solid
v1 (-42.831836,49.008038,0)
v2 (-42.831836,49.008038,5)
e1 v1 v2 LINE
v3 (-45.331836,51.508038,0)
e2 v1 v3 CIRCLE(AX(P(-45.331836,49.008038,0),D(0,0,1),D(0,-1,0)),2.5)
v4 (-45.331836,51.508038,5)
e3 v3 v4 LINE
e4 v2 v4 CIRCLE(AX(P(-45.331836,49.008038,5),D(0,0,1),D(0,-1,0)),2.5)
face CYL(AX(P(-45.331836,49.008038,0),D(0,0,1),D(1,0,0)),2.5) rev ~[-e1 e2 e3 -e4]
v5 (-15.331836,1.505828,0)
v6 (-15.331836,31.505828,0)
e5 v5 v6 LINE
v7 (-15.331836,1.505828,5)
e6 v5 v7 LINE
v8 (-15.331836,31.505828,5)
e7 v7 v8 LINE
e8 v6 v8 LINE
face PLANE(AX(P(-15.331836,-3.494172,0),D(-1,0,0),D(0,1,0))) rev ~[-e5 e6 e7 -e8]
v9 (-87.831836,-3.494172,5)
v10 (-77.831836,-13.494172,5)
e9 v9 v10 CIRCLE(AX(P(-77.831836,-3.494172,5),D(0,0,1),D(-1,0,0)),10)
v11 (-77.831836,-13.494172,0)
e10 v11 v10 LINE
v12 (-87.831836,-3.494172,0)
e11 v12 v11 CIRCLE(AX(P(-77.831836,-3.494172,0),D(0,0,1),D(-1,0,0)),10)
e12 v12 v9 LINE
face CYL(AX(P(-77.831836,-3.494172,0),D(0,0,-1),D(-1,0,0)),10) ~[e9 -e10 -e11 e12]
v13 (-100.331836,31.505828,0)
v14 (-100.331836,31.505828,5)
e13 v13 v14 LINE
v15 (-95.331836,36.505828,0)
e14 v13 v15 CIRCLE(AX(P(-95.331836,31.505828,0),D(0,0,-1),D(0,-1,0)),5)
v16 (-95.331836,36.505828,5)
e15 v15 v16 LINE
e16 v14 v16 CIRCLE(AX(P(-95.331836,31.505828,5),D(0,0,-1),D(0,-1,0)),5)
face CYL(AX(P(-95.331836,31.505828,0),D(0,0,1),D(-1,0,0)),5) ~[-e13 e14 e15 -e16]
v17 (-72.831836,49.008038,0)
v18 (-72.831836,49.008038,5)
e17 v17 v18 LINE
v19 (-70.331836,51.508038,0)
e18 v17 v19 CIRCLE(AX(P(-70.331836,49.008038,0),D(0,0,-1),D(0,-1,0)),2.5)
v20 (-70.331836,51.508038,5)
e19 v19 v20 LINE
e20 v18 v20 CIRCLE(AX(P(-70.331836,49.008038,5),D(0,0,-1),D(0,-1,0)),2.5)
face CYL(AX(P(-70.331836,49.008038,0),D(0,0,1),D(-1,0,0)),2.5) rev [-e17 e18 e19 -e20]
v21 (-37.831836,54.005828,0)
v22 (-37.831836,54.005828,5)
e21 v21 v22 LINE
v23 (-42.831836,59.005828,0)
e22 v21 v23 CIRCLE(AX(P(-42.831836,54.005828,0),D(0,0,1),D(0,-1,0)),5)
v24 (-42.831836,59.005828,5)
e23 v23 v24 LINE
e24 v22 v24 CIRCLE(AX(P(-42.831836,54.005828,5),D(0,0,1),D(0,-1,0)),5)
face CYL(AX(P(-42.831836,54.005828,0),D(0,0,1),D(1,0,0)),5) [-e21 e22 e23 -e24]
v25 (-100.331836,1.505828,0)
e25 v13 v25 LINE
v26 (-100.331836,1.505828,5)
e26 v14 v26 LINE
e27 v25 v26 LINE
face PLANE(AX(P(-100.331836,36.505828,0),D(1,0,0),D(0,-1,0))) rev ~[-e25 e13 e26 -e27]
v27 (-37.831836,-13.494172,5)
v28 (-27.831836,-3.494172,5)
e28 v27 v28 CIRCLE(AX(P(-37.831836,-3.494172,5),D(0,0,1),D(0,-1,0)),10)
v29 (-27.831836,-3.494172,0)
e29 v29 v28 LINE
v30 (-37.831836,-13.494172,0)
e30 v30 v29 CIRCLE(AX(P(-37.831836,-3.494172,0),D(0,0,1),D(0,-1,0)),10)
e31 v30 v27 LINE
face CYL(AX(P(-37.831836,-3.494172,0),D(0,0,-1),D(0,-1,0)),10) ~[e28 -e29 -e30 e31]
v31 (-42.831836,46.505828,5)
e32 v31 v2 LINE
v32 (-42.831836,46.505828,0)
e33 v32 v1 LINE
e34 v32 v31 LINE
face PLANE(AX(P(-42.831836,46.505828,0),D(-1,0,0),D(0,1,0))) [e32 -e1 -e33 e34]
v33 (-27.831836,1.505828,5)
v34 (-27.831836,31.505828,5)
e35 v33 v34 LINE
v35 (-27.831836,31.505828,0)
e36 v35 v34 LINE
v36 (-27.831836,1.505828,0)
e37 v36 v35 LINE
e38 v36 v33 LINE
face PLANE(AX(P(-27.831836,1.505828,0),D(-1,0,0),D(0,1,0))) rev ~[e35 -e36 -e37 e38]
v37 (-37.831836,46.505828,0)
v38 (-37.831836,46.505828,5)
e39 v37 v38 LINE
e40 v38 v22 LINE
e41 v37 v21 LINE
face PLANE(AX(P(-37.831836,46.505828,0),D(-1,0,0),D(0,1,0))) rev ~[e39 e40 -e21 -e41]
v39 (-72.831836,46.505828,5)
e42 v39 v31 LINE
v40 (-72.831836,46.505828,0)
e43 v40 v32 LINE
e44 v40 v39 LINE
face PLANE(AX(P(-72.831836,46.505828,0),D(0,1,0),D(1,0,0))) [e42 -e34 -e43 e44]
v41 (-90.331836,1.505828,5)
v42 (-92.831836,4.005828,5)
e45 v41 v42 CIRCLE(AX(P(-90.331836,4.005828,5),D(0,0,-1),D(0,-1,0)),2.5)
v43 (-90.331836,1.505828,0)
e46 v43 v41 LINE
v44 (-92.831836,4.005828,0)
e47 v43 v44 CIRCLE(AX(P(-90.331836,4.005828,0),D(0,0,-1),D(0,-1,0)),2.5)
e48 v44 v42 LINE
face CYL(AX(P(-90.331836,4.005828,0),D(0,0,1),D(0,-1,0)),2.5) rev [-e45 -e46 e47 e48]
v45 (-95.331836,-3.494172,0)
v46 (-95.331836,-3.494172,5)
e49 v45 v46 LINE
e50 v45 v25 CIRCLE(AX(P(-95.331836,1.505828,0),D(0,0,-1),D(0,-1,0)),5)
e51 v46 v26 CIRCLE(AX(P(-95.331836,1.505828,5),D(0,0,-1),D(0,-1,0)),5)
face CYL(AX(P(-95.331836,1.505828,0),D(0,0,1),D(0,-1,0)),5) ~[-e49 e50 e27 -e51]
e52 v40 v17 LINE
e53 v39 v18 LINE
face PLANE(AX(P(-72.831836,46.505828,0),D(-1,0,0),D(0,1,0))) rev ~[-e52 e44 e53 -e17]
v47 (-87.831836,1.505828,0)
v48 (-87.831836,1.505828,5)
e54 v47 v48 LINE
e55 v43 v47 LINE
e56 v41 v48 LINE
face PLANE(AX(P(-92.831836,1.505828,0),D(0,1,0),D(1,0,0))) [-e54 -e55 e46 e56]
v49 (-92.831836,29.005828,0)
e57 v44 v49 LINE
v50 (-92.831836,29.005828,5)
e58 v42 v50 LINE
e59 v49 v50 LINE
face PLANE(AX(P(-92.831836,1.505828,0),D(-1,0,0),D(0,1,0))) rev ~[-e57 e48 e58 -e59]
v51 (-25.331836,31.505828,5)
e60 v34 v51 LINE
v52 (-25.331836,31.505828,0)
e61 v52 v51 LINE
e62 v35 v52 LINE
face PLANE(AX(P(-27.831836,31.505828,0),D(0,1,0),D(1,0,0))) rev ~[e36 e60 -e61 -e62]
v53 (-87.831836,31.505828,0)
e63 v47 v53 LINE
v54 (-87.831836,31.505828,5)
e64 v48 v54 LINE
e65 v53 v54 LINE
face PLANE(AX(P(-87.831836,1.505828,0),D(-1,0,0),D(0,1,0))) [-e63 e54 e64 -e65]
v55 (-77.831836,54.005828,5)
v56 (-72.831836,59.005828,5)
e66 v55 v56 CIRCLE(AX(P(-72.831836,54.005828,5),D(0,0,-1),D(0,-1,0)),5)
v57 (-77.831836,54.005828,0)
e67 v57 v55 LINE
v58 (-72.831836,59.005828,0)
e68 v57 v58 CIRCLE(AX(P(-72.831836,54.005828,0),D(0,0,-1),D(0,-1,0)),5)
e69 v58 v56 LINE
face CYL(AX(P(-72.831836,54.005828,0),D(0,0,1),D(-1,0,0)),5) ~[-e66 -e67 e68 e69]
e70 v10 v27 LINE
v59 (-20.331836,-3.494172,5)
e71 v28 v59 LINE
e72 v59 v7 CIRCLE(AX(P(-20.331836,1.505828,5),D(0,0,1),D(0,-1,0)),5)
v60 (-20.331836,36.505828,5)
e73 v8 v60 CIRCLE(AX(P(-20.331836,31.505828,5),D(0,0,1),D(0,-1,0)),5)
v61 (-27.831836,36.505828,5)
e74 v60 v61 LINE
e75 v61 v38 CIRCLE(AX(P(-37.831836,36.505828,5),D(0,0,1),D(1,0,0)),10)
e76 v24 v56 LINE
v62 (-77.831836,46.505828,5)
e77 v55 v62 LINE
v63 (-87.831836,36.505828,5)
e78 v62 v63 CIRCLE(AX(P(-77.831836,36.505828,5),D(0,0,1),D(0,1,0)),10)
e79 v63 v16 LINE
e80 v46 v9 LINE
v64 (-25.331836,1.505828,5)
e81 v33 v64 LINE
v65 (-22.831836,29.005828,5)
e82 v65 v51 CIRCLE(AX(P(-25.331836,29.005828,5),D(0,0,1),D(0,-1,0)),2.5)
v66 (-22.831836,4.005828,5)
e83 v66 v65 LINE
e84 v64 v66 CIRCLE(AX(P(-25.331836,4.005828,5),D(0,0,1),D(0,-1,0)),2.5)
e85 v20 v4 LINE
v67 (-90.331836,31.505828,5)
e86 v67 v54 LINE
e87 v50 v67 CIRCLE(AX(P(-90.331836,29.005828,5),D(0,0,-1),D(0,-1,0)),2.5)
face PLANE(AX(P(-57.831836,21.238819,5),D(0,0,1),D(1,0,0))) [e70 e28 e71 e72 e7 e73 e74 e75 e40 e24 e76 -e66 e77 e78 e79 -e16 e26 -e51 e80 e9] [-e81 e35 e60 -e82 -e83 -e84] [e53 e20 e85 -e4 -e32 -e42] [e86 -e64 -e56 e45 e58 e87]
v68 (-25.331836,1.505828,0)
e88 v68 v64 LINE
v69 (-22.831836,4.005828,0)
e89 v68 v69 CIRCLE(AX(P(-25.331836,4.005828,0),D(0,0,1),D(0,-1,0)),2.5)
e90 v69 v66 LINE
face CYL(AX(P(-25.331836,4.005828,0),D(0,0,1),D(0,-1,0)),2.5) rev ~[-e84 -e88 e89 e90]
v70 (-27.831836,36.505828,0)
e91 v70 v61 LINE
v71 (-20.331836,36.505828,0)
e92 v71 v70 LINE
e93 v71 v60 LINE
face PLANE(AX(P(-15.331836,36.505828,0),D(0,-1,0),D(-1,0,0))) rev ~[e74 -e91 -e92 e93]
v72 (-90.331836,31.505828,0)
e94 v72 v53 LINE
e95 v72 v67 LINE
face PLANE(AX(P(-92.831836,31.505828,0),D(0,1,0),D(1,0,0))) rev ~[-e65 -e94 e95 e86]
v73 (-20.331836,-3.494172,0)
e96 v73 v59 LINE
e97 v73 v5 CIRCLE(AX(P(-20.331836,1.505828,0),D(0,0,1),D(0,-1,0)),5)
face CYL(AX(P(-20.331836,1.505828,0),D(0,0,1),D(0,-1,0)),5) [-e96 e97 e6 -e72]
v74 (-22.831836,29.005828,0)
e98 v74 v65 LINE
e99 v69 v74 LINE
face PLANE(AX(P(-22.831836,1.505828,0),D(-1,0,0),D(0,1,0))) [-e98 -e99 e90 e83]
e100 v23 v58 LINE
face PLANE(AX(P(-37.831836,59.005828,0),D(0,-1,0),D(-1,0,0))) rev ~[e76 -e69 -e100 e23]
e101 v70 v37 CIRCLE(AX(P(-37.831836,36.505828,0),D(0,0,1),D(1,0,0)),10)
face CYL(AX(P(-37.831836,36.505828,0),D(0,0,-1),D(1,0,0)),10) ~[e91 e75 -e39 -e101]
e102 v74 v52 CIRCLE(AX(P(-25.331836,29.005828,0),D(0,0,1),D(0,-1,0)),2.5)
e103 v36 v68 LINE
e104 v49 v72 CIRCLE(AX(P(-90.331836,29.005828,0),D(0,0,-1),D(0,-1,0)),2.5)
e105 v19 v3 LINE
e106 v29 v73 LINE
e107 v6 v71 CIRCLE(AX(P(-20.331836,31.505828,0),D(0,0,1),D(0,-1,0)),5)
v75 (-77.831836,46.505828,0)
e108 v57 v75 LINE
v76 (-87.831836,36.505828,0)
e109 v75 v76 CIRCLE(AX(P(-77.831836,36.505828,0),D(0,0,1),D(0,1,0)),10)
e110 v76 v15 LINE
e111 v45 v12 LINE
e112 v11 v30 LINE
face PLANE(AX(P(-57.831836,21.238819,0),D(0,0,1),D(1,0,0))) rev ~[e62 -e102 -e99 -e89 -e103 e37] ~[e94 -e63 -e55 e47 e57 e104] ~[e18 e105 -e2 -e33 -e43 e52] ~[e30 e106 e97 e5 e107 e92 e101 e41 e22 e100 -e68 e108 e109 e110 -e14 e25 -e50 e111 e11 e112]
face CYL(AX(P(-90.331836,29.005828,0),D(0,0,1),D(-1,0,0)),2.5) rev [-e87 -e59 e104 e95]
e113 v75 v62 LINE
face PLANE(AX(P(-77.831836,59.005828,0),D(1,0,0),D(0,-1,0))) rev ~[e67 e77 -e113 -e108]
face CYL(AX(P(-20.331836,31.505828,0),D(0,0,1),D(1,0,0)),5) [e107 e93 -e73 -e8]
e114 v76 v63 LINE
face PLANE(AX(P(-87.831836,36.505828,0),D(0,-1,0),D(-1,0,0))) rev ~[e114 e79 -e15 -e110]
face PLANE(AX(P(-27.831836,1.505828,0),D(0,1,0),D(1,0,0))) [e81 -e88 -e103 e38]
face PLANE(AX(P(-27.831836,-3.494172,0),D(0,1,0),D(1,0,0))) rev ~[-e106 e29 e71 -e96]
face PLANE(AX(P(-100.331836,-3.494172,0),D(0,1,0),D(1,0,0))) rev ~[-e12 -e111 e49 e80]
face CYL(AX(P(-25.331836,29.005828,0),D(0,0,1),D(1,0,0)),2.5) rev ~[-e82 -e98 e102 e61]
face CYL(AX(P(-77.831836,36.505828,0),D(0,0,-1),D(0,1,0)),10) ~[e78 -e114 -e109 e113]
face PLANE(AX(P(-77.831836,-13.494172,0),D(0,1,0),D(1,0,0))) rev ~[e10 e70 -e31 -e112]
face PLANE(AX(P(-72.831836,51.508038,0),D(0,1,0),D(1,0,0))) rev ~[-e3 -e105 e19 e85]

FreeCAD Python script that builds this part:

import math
import FreeCAD as App
import Part
import Sketcher
Q = App.Units.Quantity


def edges_at(feature, points):
    """Names of the edges that pass closest to the given points."""
    edges = feature.Shape.Edges
    near = lambda p: min(range(len(edges)), key=lambda i: edges[i].distToShape(Part.Vertex(*p))[0])
    return sorted({f"Edge{near(p) + 1}" for p in points})


def add_polygon(sketch, points):
    """Adds a closed chain of lines whose ends are joined by coincident constraints."""
    first, n = sketch.GeometryCount, len(points)
    for a, b in zip(points, points[1:] + points[:1]):
        sketch.addGeometry(Part.LineSegment(App.Vector(*a, 0), App.Vector(*b, 0)), False)
    for i in range(n):
        sketch.addConstraint(Sketcher.Constraint("Coincident", first + i, 2, first + (i + 1) % n, 1))

doc = App.newDocument("Part")
body = doc.addObject("PartDesign::Body", "Body")

# Sketch on XY plane
sketch1 = body.newObject("Sketcher::SketchObject", "Sketch")
sketch1.AttachmentSupport = (doc.getObject("XY_Plane"), [""])
sketch1.MapMode = "FlatFace"
sketch1.addGeometry(Part.LineSegment(App.Vector(-77.831836, -13.494172, 0), App.Vector(-37.831836, -13.494172, 0)), False)  # 0
sketch1.addGeometry(Part.ArcOfCircle(Part.Circle(App.Vector(-37.831836, -3.494172, 0), App.Vector(0, 0, 1), 10), math.radians(-90), math.radians(0)), False)  # 1
sketch1.addGeometry(Part.LineSegment(App.Vector(-27.831836, -3.494172, 0), App.Vector(-15.331836, -3.494172, 0)), False)  # 2
sketch1.addGeometry(Part.LineSegment(App.Vector(-15.331836, -3.494172, 0), App.Vector(-15.331836, 36.505828, 0)), False)  # 3
sketch1.addGeometry(Part.LineSegment(App.Vector(-15.331836, 36.505828, 0), App.Vector(-27.831836, 36.505828, 0)), False)  # 4
sketch1.addGeometry(Part.ArcOfCircle(Part.Circle(App.Vector(-37.831836, 36.505828, 0), App.Vector(0, 0, 1), 10), math.radians(0), math.radians(90)), False)  # 5
sketch1.addGeometry(Part.LineSegment(App.Vector(-37.831836, 46.505828, 0), App.Vector(-37.831836, 59.005828, 0)), False)  # 6
sketch1.addGeometry(Part.LineSegment(App.Vector(-37.831836, 59.005828, 0), App.Vector(-77.831836, 59.005828, 0)), False)  # 7
sketch1.addGeometry(Part.LineSegment(App.Vector(-77.831836, 59.005828, 0), App.Vector(-77.831836, 46.505828, 0)), False)  # 8
sketch1.addGeometry(Part.ArcOfCircle(Part.Circle(App.Vector(-77.831836, 36.505828, 0), App.Vector(0, 0, 1), 10), math.radians(90), math.radians(180)), False)  # 9
sketch1.addGeometry(Part.LineSegment(App.Vector(-87.831836, 36.505828, 0), App.Vector(-100.331836, 36.505828, 0)), False)  # 10
sketch1.addGeometry(Part.LineSegment(App.Vector(-100.331836, 36.505828, 0), App.Vector(-100.331836, -3.494172, 0)), False)  # 11
sketch1.addGeometry(Part.LineSegment(App.Vector(-100.331836, -3.494172, 0), App.Vector(-87.831836, -3.494172, 0)), False)  # 12
sketch1.addGeometry(Part.ArcOfCircle(Part.Circle(App.Vector(-77.831836, -3.494172, 0), App.Vector(0, 0, 1), 10), math.radians(180), math.radians(270)), False)  # 13
add_polygon(sketch1, [(-87.831836, 1.505828), (-92.831836, 1.505828), (-92.831836, 31.505828), (-87.831836, 31.505828)])  # lines 14-17
add_polygon(sketch1, [(-22.831836, 1.505828), (-27.831836, 1.505828), (-27.831836, 31.505828), (-22.831836, 31.505828)])  # lines 18-21
add_polygon(sketch1, [(-42.831836, 46.505828), (-72.831836, 46.505828), (-72.831836, 51.508038), (-42.831836, 51.508038)])  # lines 22-25
sketch1.addConstraint([
    Sketcher.Constraint("Tangent", 0, 2, 1, 1),
    Sketcher.Constraint("Coincident", 1, 2, 2, 1),
    Sketcher.Constraint("Coincident", 2, 2, 3, 1),
    Sketcher.Constraint("Coincident", 3, 2, 4, 1),
    Sketcher.Constraint("Coincident", 4, 2, 5, 1),
    Sketcher.Constraint("Coincident", 5, 2, 6, 1),
    Sketcher.Constraint("Coincident", 6, 2, 7, 1),
    Sketcher.Constraint("Coincident", 7, 2, 8, 1),
    Sketcher.Constraint("Coincident", 8, 2, 9, 1),
    Sketcher.Constraint("Coincident", 9, 2, 10, 1),
    Sketcher.Constraint("Coincident", 10, 2, 11, 1),
    Sketcher.Constraint("Coincident", 11, 2, 12, 1),
    Sketcher.Constraint("Coincident", 12, 2, 13, 1),
    Sketcher.Constraint("Tangent", 13, 2, 0, 1),
    Sketcher.Constraint("Horizontal", 0),
    Sketcher.Constraint("Horizontal", 2),
    Sketcher.Constraint("Vertical", 3),
    Sketcher.Constraint("Horizontal", 4),
    Sketcher.Constraint("Vertical", 6),
    Sketcher.Constraint("Horizontal", 7),
    Sketcher.Constraint("Vertical", 8),
    Sketcher.Constraint("Horizontal", 10),
    Sketcher.Constraint("Vertical", 11),
    Sketcher.Constraint("Horizontal", 12),
    Sketcher.Constraint("Horizontal", 14),
    Sketcher.Constraint("Vertical", 15),
    Sketcher.Constraint("Horizontal", 16),
    Sketcher.Constraint("Vertical", 17),
    Sketcher.Constraint("Horizontal", 18),
    Sketcher.Constraint("Vertical", 19),
    Sketcher.Constraint("Horizontal", 20),
    Sketcher.Constraint("Vertical", 21),
    Sketcher.Constraint("Horizontal", 22),
    Sketcher.Constraint("Vertical", 23),
    Sketcher.Constraint("Horizontal", 24),
    Sketcher.Constraint("Vertical", 25),
    Sketcher.Constraint("Equal", 1, 5),
    Sketcher.Constraint("Equal", 5, 9),
    Sketcher.Constraint("Equal", 9, 13),
    Sketcher.Constraint("Horizontal", 5, 3, 9, 3),
    Sketcher.Constraint("Horizontal", 13, 3, 1, 2),
    Sketcher.Constraint("Horizontal", 9, 3, 3, 2),
    Sketcher.Constraint("Horizontal", 4, 2, 9, 2),
    Sketcher.Constraint("Horizontal", 2, 2, 11, 2),
    Sketcher.Constraint("Horizontal", 17, 2, 18, 2),
    Sketcher.Constraint("Horizontal", 16, 2, 19, 2),
    Sketcher.Constraint("Horizontal", 8, 2, 22, 2),
    Sketcher.Constraint("Vertical", 1, 3, 5, 3),
    Sketcher.Constraint("Vertical", 9, 3, 13, 3),
    Sketcher.Constraint("Vertical", 0, 2, 5, 2),
    Sketcher.Constraint("Vertical", 13, 3, 7, 2),
    Sketcher.Constraint("Vertical", 12, 2, 16, 2),
    Sketcher.Constraint("Vertical", 4, 2, 18, 2),
    Sketcher.Constraint("Equal", 4, 10),
    Sketcher.Constraint("Equal", 16, 18),
    Sketcher.Constraint("Equal", 7, 3),
    Sketcher.Constraint("Equal", 12, 6),
    Sketcher.Constraint("Equal", 24, 15),
    Sketcher.Constraint("Radius", 1, Q("10 mm")),
    Sketcher.Constraint("DistanceX", 0, 1, 0, 2, Q("40 mm")),
    Sketcher.Constraint("DistanceX", 14, 2, 14, 1, Q("5 mm")),
    Sketcher.Constraint("DistanceX", 22, 2, 22, 1, Q("30 mm")),
    Sketcher.Constraint("DistanceX", 2, 1, 2, 2, Q("12.5 mm")),
    Sketcher.Constraint("DistanceY", 12, 2, 14, 2, Q("5 mm")),
    Sketcher.Constraint("DistanceX", 8, 2, 22, 2, Q("5 mm")),
    Sketcher.Constraint("DistanceY", 23, 1, 23, 2, Q("5.00221 mm")),
    Sketcher.Constraint("DistanceY", 1, 3, -1, 1, Q("3.494172 mm")),
    Sketcher.Constraint("DistanceX", 1, 3, -1, 1, Q("37.831836 mm")),
])
pad1 = body.newObject("PartDesign::Pad", "Pad")
pad1.Profile = sketch1
pad1.Length = 5
doc.recompute()

fillet = body.newObject("PartDesign::Fillet", "Fillet")
fillet.Base = (pad1, edges_at(pad1, [
    (-15.332, 36.506, 2.5),
    (-15.332, -3.494, 2.5),
    (-100.332, -3.494, 2.5),
    (-100.332, 36.506, 2.5),
    (-77.832, 59.006, 2.5),
    (-37.832, 59.006, 2.5),
]))
fillet.Radius = 5
doc.recompute()

fillet2 = body.newObject("PartDesign::Fillet", "Fillet001")
fillet2.Base = (fillet, edges_at(fillet, [
    (-22.832, 31.506, 2.5),
    (-22.832, 1.506, 2.5),
    (-92.832, 31.506, 2.5),
    (-92.832, 1.506, 2.5),
    (-72.832, 51.508, 2.5),
    (-42.832, 51.508, 2.5),
]))
fillet2.Radius = 2.5

doc.recompute()
